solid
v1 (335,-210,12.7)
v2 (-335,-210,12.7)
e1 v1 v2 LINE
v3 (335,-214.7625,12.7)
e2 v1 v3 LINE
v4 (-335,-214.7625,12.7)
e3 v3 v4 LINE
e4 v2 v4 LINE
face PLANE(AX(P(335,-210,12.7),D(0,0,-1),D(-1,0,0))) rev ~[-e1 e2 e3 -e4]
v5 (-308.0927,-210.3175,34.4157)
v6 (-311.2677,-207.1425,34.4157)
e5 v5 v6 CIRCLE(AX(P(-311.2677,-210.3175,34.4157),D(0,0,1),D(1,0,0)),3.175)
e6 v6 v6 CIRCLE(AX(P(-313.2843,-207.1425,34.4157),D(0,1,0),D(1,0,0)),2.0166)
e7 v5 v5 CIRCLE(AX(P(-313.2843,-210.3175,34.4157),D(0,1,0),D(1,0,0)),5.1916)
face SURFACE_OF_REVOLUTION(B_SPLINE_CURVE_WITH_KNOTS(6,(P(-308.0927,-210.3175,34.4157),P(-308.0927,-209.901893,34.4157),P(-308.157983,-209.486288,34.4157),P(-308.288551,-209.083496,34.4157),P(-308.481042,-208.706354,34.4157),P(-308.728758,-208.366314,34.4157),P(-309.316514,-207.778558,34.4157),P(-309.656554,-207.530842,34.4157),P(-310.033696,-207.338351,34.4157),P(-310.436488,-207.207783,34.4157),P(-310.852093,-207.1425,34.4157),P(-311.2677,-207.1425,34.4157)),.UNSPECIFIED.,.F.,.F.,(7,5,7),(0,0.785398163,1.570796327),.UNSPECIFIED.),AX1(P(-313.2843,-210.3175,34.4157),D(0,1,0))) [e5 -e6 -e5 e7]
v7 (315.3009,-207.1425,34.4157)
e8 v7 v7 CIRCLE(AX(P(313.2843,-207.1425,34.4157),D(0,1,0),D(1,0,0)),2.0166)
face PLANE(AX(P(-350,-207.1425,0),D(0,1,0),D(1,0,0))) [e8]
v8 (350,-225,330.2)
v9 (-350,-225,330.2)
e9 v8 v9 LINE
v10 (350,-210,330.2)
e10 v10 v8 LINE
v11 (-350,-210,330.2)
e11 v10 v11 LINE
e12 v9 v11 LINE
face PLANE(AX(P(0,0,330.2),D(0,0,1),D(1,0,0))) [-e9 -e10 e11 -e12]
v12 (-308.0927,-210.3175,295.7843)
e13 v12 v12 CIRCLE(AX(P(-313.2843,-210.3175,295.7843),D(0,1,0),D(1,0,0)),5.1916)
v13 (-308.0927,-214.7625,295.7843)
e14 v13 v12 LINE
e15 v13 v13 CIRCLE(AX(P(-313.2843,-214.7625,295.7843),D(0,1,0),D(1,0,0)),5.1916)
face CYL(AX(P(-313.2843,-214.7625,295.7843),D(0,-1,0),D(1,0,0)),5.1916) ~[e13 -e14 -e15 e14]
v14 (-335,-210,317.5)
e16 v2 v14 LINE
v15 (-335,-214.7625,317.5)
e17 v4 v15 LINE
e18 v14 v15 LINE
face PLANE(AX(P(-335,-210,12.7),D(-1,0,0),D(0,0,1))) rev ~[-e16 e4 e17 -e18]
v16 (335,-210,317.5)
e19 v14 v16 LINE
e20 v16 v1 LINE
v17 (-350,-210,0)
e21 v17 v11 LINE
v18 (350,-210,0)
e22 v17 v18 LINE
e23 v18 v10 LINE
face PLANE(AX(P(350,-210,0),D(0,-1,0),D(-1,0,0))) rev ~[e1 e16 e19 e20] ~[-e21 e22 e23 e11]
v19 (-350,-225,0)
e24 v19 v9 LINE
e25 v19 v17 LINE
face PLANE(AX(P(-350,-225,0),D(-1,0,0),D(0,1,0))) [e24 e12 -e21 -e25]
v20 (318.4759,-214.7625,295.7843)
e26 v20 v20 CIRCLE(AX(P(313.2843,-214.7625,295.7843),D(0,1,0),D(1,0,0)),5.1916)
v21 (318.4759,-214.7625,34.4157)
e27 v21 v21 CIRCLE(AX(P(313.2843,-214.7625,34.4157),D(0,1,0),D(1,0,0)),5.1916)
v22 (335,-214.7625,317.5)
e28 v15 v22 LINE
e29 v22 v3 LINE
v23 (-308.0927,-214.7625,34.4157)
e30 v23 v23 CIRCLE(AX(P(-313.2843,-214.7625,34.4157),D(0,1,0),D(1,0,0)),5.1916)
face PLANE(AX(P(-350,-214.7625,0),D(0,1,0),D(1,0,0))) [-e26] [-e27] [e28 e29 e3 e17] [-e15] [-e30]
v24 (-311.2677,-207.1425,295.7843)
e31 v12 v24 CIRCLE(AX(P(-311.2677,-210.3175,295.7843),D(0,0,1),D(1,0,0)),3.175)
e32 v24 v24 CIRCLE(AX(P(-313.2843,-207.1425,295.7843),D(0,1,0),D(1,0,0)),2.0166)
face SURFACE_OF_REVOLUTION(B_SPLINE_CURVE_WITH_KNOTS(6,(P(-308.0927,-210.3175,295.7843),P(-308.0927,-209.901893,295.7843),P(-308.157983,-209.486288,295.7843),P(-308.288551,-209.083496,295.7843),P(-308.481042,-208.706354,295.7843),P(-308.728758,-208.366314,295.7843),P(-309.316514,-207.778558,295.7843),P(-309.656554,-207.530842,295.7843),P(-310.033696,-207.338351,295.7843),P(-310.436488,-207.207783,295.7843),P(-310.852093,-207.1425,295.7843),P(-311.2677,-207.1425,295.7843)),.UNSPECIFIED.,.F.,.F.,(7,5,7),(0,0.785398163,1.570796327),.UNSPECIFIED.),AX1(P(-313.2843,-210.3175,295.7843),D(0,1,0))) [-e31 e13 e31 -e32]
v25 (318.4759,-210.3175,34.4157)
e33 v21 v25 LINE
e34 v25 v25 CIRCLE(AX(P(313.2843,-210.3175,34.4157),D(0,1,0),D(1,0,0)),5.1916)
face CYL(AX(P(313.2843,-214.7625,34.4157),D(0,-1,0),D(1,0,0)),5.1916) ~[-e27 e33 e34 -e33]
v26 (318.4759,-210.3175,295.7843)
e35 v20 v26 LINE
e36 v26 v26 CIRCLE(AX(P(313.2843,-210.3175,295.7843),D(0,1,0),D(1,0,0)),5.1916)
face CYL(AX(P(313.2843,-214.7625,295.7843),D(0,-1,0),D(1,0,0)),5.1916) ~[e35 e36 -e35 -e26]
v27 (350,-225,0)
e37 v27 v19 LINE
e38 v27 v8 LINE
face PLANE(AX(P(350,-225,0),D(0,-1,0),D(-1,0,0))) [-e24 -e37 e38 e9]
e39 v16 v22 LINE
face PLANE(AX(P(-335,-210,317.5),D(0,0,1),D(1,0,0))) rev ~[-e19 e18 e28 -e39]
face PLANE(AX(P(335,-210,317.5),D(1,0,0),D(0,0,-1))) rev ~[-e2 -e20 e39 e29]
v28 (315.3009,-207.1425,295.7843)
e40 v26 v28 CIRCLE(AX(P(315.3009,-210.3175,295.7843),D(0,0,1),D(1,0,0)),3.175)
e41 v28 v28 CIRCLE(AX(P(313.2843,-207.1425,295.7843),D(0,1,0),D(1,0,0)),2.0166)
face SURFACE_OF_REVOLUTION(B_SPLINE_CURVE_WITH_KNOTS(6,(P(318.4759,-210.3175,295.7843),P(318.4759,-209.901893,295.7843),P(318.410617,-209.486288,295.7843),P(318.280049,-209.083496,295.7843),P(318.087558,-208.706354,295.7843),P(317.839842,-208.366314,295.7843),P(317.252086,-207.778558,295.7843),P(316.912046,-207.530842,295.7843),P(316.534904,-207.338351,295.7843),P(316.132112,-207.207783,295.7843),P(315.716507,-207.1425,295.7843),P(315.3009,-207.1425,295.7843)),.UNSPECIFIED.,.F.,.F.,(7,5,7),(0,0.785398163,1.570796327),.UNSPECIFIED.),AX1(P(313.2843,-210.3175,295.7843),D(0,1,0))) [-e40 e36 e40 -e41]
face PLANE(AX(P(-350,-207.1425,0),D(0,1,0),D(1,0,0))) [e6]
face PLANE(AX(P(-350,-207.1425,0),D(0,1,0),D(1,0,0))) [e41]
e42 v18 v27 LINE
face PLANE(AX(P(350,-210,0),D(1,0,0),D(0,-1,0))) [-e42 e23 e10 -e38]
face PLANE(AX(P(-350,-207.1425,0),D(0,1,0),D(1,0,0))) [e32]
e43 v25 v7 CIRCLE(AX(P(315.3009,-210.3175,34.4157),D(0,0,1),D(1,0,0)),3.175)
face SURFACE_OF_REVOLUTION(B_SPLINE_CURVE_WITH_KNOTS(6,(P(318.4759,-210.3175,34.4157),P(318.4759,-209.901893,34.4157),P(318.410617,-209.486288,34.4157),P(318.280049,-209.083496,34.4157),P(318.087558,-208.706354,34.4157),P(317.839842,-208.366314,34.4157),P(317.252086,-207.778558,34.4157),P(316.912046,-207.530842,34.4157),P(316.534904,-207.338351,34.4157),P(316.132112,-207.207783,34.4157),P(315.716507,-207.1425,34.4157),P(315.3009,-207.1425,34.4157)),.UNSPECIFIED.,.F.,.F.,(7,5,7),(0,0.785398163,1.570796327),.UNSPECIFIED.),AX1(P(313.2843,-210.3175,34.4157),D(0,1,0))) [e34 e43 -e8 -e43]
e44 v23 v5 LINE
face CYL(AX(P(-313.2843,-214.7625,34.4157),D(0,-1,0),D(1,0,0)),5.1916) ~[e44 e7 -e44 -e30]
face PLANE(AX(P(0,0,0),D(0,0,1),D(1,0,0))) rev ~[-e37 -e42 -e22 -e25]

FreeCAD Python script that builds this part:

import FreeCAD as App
import Part
import Sketcher
Q = App.Units.Quantity


def edges_at(feature, points):
    """Names of the edges that pass closest to the given points."""
    edges = feature.Shape.Edges
    near = lambda p: min(range(len(edges)), key=lambda i: edges[i].distToShape(Part.Vertex(*p))[0])
    return sorted({f"Edge{near(p) + 1}" for p in points})

doc = App.newDocument("Part")
body = doc.addObject("PartDesign::Body", "Body")

sketch1 = doc.addObject("Sketcher::SketchObject", "Sketch")
body.addObject(sketch1)
sketch1.AttachmentSupport = (doc.XY_Plane, [""])
sketch1.MapMode = "FlatFace"
sketch1.addGeometry([
    Part.LineSegment(App.Vector(-350, -225, 0), App.Vector(350, -225, 0)),
    Part.LineSegment(App.Vector(350, -225, 0), App.Vector(350, -210, 0)),
    Part.LineSegment(App.Vector(350, -210, 0), App.Vector(-350, -210, 0)),
    Part.LineSegment(App.Vector(-350, -210, 0), App.Vector(-350, -225, 0)),
], False)
sketch1.addConstraint([
    Sketcher.Constraint("Coincident", 0, 2, 1, 1),
    Sketcher.Constraint("Coincident", 1, 2, 2, 1),
    Sketcher.Constraint("Coincident", 2, 2, 3, 1),
    Sketcher.Constraint("Coincident", 3, 2, 0, 1),
    Sketcher.Constraint("Horizontal", 0),
    Sketcher.Constraint("Vertical", 1),
    Sketcher.Constraint("Horizontal", 2),
    Sketcher.Constraint("Vertical", 3),
    Sketcher.Constraint("DistanceX", 0, 1, 0, 2, 700.0),
    Sketcher.Constraint("DistanceY", 1, 1, 1, 2, 15.0),
    Sketcher.Constraint("DistanceX", -1, 1, 0, 2, 350.0),
    Sketcher.Constraint("DistanceY", 0, 2, -1, 1, 225.0),
])
pad1 = doc.addObject("PartDesign::Pad", "Pad")
body.addObject(pad1)
pad1.Profile = sketch1
pad1.Length = Q("13 in")

sketch2 = doc.addObject("Sketcher::SketchObject", "Sketch001")
body.addObject(sketch2)
sketch2.AttachmentSupport = (doc.XZ_Plane, [""])
sketch2.MapMode = "FlatFace"
sketch2.AttachmentOffset = App.Placement(App.Vector(0, 0, 210), App.Rotation())
sketch2.addGeometry([
    Part.LineSegment(App.Vector(-335, 12.7, 0), App.Vector(-335, 317.5, 0)),
    Part.LineSegment(App.Vector(-335, 317.5, 0), App.Vector(335, 317.5, 0)),
    Part.LineSegment(App.Vector(335, 317.5, 0), App.Vector(335, 12.7, 0)),
    Part.LineSegment(App.Vector(335, 12.7, 0), App.Vector(-335, 12.7, 0)),
], False)
sketch2.addConstraint([
    Sketcher.Constraint("Coincident", 0, 2, 1, 1),
    Sketcher.Constraint("Coincident", 1, 2, 2, 1),
    Sketcher.Constraint("Coincident", 2, 2, 3, 1),
    Sketcher.Constraint("Coincident", 3, 2, 0, 1),
    Sketcher.Constraint("Vertical", 0),
    Sketcher.Constraint("Horizontal", 1),
    Sketcher.Constraint("Vertical", 2),
    Sketcher.Constraint("Horizontal", 3),
    Sketcher.Constraint("DistanceY", -1, 1, 2, 2, Q("0.5 in")),
    Sketcher.Constraint("DistanceY", 0, 1, 0, 2, Q("12 in")),
    Sketcher.Constraint("DistanceX", 1, 1, 1, 2, 670.0),
    Sketcher.Constraint("DistanceX", 0, 2, -1, 1, 335.0),
])
pocket1 = doc.addObject("PartDesign::Pocket", "Pocket")
body.addObject(pocket1)
pocket1.Profile = sketch2
pocket1.Length = Q("0.1875 in")
pocket1.Reversed = True

sketch3 = doc.addObject("Sketcher::SketchObject", "Sketch002")
body.addObject(sketch3)
sketch3.AttachmentSupport = (doc.XZ_Plane, [""])
sketch3.MapMode = "FlatFace"
sketch3.AttachmentOffset = App.Placement(App.Vector(0, 0, 214.7625), App.Rotation())
sketch3.addGeometry([
    Part.Circle(App.Vector(-313.2843, 34.4157, 0), App.Vector(0, 0, 1), 5.1916),
    Part.Circle(App.Vector(313.2843, 34.4157, 0), App.Vector(0, 0, 1), 5.1916),
    Part.Circle(App.Vector(313.2843, 295.7843, 0), App.Vector(0, 0, 1), 5.1916),
    Part.Circle(App.Vector(-313.2843, 295.7843, 0), App.Vector(0, 0, 1), 5.1916),
], False)
sketch3.addConstraint([
    Sketcher.Constraint("Equal", 0, 1),
    Sketcher.Constraint("Equal", 1, 2),
    Sketcher.Constraint("Equal", 2, 3),
    Sketcher.Constraint("Symmetric", 0, 3, 1, 3, -2),
    Sketcher.Constraint("Symmetric", 2, 3, 3, 3, -2),
    Sketcher.Constraint("Vertical", 1, 3, 2, 3),
    Sketcher.Constraint("Diameter", 0, 10.3832),
    Sketcher.Constraint("DistanceY", 1, 3, 2, 3, Q("10.2901 in")),
    Sketcher.Constraint("DistanceX", 0, 3, -1, 1, 313.2843),
    Sketcher.Constraint("DistanceY", -1, 1, 0, 3, 34.4157),
])
pad2 = doc.addObject("PartDesign::Pad", "Pad001")
body.addObject(pad2)
pad2.Profile = sketch3
pad2.Length = Q("0.3 in")
pad2.Reversed = True
doc.recompute()

fillet = doc.addObject("PartDesign::Fillet", "Fillet")
body.addObject(fillet)
fillet.Base = (pad2, edges_at(pad2, [
    (308.093, -207.143, 34.416),
    (308.093, -207.143, 295.784),
    (-318.476, -207.143, 295.784),
    (-318.476, -207.143, 34.416),
]))
fillet.Radius = Q("0.125 in")

doc.recompute()
